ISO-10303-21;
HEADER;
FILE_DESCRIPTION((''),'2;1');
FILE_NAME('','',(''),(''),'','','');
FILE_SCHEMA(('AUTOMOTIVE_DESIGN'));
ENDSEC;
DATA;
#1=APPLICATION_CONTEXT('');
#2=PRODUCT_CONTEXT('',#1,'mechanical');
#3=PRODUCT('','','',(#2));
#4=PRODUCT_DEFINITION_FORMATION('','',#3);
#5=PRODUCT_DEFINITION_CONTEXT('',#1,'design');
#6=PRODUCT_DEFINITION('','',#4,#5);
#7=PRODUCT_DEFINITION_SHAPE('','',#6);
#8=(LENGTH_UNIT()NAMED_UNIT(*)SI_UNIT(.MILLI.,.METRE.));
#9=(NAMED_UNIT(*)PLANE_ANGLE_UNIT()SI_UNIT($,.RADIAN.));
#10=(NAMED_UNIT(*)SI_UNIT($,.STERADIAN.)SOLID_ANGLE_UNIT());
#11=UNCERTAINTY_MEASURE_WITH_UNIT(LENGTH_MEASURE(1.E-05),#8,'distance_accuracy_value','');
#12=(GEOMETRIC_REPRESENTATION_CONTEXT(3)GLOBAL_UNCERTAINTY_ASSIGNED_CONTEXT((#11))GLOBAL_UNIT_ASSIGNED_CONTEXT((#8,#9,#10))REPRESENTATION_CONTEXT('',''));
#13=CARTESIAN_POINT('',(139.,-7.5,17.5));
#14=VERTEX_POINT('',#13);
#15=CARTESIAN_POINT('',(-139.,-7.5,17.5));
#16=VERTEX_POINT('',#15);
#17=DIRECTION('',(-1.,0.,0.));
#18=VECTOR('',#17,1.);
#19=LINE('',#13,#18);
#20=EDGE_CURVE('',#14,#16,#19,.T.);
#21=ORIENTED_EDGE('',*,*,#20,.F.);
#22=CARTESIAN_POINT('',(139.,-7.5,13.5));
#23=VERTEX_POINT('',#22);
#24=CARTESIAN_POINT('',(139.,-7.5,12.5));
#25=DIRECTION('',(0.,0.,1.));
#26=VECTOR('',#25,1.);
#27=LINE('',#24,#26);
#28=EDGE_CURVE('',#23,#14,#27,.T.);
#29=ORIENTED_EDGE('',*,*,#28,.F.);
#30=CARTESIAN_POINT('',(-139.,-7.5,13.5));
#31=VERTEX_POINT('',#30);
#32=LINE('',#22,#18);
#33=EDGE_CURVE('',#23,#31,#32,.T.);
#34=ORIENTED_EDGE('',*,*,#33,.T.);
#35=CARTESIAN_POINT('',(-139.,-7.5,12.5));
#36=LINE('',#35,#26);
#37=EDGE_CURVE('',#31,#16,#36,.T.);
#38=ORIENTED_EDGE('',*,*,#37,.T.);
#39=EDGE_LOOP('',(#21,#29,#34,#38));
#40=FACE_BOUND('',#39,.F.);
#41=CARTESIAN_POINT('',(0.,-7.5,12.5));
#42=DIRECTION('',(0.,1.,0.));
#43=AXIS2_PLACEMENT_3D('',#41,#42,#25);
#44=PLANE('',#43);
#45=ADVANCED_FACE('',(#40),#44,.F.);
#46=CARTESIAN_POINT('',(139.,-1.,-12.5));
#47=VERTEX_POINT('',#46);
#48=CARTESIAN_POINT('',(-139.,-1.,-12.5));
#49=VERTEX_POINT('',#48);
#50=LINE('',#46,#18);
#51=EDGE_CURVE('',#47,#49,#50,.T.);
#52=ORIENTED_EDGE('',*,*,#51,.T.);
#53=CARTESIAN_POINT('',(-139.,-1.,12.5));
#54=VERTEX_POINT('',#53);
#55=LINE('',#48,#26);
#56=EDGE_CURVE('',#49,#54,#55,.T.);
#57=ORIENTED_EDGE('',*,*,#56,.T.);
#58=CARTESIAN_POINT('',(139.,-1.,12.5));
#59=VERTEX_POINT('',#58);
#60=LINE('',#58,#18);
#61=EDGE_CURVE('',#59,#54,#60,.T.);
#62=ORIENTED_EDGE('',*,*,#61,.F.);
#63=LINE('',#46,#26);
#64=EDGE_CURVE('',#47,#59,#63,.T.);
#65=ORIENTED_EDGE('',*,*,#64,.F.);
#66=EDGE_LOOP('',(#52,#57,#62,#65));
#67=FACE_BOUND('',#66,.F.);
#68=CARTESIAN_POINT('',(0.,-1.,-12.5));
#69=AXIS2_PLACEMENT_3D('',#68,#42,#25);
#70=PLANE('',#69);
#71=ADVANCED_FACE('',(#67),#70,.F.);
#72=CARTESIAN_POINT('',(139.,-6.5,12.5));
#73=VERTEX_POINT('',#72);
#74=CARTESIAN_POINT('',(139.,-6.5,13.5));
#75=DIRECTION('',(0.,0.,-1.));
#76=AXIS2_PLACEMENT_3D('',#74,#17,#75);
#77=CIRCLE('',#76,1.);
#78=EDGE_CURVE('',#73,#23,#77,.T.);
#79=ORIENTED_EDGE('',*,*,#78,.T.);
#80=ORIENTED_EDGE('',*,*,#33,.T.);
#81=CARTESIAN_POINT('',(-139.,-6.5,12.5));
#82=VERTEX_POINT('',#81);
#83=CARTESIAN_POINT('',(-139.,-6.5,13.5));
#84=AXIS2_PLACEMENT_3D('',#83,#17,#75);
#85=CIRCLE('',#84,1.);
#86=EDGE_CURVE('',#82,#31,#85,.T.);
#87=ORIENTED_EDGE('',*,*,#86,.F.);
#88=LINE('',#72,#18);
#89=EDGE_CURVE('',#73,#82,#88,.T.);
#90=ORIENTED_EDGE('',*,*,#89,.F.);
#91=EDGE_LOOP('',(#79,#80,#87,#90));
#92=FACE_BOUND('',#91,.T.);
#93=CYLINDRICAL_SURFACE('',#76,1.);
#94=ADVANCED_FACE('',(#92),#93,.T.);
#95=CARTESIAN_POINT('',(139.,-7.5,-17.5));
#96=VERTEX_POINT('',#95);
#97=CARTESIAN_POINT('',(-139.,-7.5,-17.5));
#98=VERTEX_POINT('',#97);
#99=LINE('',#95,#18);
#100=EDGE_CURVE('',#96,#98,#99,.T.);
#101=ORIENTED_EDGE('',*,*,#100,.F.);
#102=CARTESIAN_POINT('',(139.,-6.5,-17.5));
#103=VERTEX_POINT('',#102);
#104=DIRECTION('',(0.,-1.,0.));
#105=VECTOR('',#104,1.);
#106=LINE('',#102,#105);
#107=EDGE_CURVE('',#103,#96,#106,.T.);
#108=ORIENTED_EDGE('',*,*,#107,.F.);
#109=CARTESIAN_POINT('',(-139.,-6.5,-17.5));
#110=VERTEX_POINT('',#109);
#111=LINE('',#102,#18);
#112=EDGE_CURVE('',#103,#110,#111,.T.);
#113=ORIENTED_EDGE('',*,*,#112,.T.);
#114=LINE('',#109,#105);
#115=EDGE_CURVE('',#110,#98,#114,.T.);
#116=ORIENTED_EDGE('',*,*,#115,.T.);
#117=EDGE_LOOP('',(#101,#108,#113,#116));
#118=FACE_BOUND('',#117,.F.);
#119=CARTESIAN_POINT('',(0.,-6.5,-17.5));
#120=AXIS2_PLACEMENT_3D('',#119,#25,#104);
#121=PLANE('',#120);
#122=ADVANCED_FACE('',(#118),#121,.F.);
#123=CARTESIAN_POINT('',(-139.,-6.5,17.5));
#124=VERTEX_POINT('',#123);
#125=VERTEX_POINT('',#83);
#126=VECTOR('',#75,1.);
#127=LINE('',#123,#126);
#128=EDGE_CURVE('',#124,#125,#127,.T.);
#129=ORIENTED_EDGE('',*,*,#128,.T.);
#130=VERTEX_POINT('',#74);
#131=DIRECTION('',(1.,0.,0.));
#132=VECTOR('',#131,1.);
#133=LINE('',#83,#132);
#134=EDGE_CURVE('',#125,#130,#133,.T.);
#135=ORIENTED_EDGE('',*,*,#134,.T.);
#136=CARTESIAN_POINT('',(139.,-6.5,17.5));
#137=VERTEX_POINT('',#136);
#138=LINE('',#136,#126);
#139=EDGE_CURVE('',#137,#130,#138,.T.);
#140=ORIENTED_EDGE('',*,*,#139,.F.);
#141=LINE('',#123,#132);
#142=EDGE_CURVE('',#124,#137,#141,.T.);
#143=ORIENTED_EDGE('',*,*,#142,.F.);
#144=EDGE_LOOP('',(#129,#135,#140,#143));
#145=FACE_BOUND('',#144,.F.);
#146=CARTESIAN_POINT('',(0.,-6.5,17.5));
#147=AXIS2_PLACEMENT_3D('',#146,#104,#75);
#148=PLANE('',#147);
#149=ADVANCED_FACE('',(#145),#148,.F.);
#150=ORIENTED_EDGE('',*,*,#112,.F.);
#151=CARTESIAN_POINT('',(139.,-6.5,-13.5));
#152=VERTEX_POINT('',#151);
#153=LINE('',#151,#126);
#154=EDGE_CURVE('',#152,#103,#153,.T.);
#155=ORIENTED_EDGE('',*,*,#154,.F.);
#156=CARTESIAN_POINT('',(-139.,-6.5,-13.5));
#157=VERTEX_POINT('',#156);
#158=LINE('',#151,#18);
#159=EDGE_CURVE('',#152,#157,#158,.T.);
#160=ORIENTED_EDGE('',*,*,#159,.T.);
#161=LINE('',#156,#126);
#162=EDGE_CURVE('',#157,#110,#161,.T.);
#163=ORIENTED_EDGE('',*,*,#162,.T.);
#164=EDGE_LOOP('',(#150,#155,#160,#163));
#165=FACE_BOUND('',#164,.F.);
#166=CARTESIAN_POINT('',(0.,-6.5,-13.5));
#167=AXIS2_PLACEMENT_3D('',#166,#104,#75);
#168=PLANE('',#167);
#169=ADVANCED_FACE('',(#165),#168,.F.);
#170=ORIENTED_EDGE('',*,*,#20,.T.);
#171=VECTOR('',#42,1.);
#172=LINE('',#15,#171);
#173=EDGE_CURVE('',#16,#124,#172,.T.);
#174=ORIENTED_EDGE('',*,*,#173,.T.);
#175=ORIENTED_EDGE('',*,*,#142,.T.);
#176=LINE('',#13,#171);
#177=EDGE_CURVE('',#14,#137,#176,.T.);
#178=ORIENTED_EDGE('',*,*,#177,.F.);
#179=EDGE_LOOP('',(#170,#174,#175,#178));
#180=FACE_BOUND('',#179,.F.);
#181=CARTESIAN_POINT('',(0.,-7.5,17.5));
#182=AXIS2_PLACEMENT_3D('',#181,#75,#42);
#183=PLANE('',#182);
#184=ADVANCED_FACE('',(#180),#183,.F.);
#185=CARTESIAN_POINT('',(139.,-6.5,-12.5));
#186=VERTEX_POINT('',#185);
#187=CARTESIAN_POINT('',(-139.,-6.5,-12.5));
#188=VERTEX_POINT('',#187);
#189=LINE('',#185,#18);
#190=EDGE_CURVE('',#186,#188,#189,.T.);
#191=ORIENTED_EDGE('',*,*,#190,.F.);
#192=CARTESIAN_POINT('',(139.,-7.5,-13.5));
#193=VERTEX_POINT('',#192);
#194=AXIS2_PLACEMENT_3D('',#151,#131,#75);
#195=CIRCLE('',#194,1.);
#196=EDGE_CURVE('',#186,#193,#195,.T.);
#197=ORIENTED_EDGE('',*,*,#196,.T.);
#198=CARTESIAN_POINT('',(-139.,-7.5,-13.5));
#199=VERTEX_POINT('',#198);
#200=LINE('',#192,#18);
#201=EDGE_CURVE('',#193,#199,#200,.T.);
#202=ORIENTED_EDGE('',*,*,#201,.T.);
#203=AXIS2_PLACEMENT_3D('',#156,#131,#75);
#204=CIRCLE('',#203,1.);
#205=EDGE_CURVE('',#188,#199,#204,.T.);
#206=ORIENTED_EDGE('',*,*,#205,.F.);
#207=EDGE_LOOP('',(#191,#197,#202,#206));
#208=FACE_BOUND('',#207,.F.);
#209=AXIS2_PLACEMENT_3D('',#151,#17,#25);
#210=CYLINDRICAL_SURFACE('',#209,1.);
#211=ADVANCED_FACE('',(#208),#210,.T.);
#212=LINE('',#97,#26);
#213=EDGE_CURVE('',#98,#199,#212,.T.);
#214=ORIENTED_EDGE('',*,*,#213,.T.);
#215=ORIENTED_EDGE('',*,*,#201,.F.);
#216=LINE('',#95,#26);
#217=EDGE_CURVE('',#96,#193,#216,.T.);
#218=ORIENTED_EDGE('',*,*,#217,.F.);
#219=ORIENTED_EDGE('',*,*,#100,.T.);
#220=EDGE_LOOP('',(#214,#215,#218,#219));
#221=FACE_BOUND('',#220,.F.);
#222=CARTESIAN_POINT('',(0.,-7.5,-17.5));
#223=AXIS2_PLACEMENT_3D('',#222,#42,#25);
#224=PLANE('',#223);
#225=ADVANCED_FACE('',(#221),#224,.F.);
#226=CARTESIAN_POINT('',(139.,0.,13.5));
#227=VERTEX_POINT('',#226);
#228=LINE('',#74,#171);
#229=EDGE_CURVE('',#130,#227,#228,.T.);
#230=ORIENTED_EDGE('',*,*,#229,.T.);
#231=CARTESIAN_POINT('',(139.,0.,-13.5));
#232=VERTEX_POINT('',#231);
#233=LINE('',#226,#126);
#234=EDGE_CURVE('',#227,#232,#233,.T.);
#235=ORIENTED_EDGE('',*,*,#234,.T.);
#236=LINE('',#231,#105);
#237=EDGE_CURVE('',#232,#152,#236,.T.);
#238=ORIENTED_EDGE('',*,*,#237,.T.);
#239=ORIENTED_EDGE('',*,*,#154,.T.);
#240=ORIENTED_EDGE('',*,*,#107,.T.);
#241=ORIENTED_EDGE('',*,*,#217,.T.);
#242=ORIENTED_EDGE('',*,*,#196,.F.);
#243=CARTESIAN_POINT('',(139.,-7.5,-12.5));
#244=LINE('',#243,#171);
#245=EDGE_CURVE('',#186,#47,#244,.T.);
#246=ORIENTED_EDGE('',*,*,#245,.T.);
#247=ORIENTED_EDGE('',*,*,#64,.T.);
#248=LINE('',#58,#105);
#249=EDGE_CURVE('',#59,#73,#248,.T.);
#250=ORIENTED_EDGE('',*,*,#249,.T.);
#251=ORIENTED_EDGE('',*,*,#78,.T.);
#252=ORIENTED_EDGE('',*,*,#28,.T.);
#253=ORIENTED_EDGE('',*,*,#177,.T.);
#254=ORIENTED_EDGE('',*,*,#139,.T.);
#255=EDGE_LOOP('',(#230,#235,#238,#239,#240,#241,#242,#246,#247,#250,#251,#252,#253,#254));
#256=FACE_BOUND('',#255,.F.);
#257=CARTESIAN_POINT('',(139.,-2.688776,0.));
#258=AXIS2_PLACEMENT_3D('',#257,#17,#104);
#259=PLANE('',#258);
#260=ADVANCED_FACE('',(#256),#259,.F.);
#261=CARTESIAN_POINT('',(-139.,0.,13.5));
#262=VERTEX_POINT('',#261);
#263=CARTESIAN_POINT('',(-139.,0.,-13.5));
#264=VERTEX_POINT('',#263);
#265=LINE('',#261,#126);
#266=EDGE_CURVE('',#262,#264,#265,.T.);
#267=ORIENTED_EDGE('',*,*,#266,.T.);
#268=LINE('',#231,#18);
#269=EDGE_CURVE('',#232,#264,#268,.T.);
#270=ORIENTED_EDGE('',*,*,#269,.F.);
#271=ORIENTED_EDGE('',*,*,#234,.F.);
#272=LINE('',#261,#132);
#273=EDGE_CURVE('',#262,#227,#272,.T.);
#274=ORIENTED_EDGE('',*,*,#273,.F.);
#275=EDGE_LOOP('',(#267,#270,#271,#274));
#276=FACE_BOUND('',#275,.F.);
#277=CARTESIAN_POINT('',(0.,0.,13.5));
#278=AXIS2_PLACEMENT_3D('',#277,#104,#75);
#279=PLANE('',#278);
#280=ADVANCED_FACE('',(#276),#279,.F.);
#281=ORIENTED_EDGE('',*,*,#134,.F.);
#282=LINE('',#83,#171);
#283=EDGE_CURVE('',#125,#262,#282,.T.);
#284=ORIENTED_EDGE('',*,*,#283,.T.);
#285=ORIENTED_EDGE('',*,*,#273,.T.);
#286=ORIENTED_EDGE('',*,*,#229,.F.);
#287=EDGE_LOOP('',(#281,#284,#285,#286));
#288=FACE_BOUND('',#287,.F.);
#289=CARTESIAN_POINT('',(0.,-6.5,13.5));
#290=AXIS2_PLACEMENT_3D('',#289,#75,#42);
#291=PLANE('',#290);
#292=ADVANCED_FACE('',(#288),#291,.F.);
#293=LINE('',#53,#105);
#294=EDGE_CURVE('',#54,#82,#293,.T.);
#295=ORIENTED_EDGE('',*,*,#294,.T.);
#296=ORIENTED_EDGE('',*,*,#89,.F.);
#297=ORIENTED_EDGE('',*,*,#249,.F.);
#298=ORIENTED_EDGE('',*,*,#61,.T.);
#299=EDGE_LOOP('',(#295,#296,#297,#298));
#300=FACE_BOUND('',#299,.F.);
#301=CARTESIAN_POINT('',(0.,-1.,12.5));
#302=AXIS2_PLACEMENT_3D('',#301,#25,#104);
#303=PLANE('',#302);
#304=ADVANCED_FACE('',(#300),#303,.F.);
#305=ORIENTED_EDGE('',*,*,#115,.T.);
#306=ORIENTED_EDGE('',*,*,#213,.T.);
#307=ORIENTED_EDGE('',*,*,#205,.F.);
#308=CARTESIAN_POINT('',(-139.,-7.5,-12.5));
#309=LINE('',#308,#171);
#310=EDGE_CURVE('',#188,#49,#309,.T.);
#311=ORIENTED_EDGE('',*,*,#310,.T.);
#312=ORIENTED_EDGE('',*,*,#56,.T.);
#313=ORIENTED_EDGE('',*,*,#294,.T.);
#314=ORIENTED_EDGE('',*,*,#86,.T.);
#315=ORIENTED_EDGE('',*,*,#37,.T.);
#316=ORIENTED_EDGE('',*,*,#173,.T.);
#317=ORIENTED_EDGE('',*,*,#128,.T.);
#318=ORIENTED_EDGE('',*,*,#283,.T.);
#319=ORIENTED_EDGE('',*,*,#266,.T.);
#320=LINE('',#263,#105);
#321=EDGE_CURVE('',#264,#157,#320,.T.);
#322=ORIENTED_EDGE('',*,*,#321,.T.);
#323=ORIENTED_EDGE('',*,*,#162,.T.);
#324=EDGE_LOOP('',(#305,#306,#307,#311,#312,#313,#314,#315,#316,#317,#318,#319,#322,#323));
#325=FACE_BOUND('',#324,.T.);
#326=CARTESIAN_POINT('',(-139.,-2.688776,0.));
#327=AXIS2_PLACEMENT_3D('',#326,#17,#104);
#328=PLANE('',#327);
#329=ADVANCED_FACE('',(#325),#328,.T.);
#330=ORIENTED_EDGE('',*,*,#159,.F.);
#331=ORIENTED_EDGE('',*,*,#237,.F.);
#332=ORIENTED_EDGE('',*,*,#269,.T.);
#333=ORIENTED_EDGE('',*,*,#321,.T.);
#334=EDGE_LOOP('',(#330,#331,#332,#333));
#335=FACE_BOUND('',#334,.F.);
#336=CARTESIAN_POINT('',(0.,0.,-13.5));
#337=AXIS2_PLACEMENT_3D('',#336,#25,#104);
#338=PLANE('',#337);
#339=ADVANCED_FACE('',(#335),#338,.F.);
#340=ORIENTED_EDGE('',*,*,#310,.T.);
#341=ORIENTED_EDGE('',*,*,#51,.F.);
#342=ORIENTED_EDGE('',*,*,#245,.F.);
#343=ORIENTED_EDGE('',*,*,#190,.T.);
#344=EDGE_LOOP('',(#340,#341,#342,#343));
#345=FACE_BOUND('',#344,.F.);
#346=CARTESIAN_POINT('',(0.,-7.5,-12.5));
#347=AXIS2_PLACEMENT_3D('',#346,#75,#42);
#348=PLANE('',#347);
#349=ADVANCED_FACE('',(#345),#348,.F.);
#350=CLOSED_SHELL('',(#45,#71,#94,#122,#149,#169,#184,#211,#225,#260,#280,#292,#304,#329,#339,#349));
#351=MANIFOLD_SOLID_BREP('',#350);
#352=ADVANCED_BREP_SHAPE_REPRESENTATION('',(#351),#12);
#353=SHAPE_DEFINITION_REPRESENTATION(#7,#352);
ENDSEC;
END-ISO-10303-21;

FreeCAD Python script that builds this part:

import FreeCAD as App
import Part
import Sketcher

V = App.Vector
Q = App.Units.Quantity


def edges_at(feature, points):
    """Names of the edges that pass closest to the given points."""
    edges = feature.Shape.Edges
    near = lambda p: min(range(len(edges)), key=lambda i: edges[i].distToShape(Part.Vertex(*p))[0])
    return sorted({f"Edge{near(p) + 1}" for p in points})

doc = App.newDocument("Part")
params = doc.addObject("Spreadsheet::Sheet", "Params")
for row, (alias, value) in enumerate([
    ("sketch1_width", "1 mm"),
    ("sketch1_height", "27 mm"),
    ("sketch1_height2", "4 mm"),
    ("sketch1_height3", "5 mm"),
    ("sketch1_width2", "6.5 mm"),
    ("pad1_length", "278 mm"),
    ("fillet_radius", "1 mm"),
    ("fillet2_radius", "1 mm"),
], start=1):
    params.set(f"A{row}", alias)
    params.set(f"B{row}", "=" + value)
    params.setAlias(f"B{row}", alias)

body = doc.addObject("PartDesign::Body", "Body")

# Sketch on YZ plane
sketch1 = doc.addObject("Sketcher::SketchObject", "Sketch")
body.addObject(sketch1)
sketch1.AttachmentSupport = (doc.YZ_Plane, [""])
sketch1.MapMode = "FlatFace"
sketch1.addGeometry([
    Part.LineSegment(V(0, -13.5, 0), V(0, 13.5, 0)),  # 0
    Part.LineSegment(V(0, 13.5, 0), V(-6.5, 13.5, 0)),  # 1
    Part.LineSegment(V(-6.5, 13.5, 0), V(-6.5, 17.5, 0)),  # 2
    Part.LineSegment(V(-6.5, 17.5, 0), V(-7.5, 17.5, 0)),  # 3
    Part.LineSegment(V(-7.5, 17.5, 0), V(-7.5, 12.5, 0)),  # 4
    Part.LineSegment(V(-7.5, 12.5, 0), V(-1, 12.5, 0)),  # 5
    Part.LineSegment(V(-1, 12.5, 0), V(-1, -12.5, 0)),  # 6
    Part.LineSegment(V(-1, -12.5, 0), V(-7.5, -12.5, 0)),  # 7
    Part.LineSegment(V(-7.5, -12.5, 0), V(-7.5, -17.5, 0)),  # 8
    Part.LineSegment(V(-7.5, -17.5, 0), V(-6.5, -17.5, 0)),  # 9
    Part.LineSegment(V(-6.5, -17.5, 0), V(-6.5, -13.5, 0)),  # 10
    Part.LineSegment(V(-6.5, -13.5, 0), V(0, -13.5, 0)),  # 11
], False)
sketch1.addConstraint([
    Sketcher.Constraint("Coincident", 0, 2, 1, 1),
    Sketcher.Constraint("Coincident", 1, 2, 2, 1),
    Sketcher.Constraint("Coincident", 2, 2, 3, 1),
    Sketcher.Constraint("Coincident", 3, 2, 4, 1),
    Sketcher.Constraint("Coincident", 4, 2, 5, 1),
    Sketcher.Constraint("Coincident", 5, 2, 6, 1),
    Sketcher.Constraint("Coincident", 6, 2, 7, 1),
    Sketcher.Constraint("Coincident", 7, 2, 8, 1),
    Sketcher.Constraint("Coincident", 8, 2, 9, 1),
    Sketcher.Constraint("Coincident", 9, 2, 10, 1),
    Sketcher.Constraint("Coincident", 10, 2, 11, 1),
    Sketcher.Constraint("Coincident", 11, 2, 0, 1),
    Sketcher.Constraint("Vertical", 0),
    Sketcher.Constraint("Horizontal", 1),
    Sketcher.Constraint("Vertical", 2),
    Sketcher.Constraint("Horizontal", 3),
    Sketcher.Constraint("Vertical", 4),
    Sketcher.Constraint("Horizontal", 5),
    Sketcher.Constraint("Vertical", 6),
    Sketcher.Constraint("Horizontal", 7),
    Sketcher.Constraint("Vertical", 8),
    Sketcher.Constraint("Horizontal", 9),
    Sketcher.Constraint("Vertical", 10),
    Sketcher.Constraint("Horizontal", 11),
    Sketcher.Constraint("Symmetric", 0, 2, 11, 2, -1, 1),
    Sketcher.Constraint("Symmetric", 4, 2, 7, 2, -1),
    Sketcher.Constraint("Symmetric", 2, 2, 9, 2, -1),
    Sketcher.Constraint("Equal", 1, 5),
    Sketcher.Constraint("DistanceX", 3, 2, 3, 1, Q("1 mm")),
    Sketcher.Constraint("DistanceY", 0, 1, 0, 2, Q("27 mm")),
    Sketcher.Constraint("DistanceY", 2, 1, 2, 2, Q("4 mm")),
    Sketcher.Constraint("DistanceY", 4, 2, 4, 1, Q("5 mm")),
    Sketcher.Constraint("DistanceX", 1, 2, 1, 1, Q("6.5 mm")),
])
sketch1.setExpression("Constraints[28]", "Params.sketch1_width")
sketch1.setExpression("Constraints[29]", "Params.sketch1_height")
sketch1.setExpression("Constraints[30]", "Params.sketch1_height2")
sketch1.setExpression("Constraints[31]", "Params.sketch1_height3")
sketch1.setExpression("Constraints[32]", "Params.sketch1_width2")
pad1 = doc.addObject("PartDesign::Pad", "Pad")
body.addObject(pad1)
pad1.Profile = sketch1
pad1.setExpression("Length", "Params.pad1_length")
pad1.Midplane = True
doc.recompute()

fillet = doc.addObject("PartDesign::Fillet", "Fillet")
body.addObject(fillet)
fillet.Base = (pad1, edges_at(pad1, [(0, -7.5, -12.5)]))
fillet.setExpression("Radius", "Params.fillet_radius")
doc.recompute()

fillet2 = doc.addObject("PartDesign::Fillet", "Fillet001")
body.addObject(fillet2)
fillet2.Base = (fillet, edges_at(fillet, [(0, -7.5, 12.5)]))
fillet2.setExpression("Radius", "Params.fillet2_radius")

doc.recompute()
